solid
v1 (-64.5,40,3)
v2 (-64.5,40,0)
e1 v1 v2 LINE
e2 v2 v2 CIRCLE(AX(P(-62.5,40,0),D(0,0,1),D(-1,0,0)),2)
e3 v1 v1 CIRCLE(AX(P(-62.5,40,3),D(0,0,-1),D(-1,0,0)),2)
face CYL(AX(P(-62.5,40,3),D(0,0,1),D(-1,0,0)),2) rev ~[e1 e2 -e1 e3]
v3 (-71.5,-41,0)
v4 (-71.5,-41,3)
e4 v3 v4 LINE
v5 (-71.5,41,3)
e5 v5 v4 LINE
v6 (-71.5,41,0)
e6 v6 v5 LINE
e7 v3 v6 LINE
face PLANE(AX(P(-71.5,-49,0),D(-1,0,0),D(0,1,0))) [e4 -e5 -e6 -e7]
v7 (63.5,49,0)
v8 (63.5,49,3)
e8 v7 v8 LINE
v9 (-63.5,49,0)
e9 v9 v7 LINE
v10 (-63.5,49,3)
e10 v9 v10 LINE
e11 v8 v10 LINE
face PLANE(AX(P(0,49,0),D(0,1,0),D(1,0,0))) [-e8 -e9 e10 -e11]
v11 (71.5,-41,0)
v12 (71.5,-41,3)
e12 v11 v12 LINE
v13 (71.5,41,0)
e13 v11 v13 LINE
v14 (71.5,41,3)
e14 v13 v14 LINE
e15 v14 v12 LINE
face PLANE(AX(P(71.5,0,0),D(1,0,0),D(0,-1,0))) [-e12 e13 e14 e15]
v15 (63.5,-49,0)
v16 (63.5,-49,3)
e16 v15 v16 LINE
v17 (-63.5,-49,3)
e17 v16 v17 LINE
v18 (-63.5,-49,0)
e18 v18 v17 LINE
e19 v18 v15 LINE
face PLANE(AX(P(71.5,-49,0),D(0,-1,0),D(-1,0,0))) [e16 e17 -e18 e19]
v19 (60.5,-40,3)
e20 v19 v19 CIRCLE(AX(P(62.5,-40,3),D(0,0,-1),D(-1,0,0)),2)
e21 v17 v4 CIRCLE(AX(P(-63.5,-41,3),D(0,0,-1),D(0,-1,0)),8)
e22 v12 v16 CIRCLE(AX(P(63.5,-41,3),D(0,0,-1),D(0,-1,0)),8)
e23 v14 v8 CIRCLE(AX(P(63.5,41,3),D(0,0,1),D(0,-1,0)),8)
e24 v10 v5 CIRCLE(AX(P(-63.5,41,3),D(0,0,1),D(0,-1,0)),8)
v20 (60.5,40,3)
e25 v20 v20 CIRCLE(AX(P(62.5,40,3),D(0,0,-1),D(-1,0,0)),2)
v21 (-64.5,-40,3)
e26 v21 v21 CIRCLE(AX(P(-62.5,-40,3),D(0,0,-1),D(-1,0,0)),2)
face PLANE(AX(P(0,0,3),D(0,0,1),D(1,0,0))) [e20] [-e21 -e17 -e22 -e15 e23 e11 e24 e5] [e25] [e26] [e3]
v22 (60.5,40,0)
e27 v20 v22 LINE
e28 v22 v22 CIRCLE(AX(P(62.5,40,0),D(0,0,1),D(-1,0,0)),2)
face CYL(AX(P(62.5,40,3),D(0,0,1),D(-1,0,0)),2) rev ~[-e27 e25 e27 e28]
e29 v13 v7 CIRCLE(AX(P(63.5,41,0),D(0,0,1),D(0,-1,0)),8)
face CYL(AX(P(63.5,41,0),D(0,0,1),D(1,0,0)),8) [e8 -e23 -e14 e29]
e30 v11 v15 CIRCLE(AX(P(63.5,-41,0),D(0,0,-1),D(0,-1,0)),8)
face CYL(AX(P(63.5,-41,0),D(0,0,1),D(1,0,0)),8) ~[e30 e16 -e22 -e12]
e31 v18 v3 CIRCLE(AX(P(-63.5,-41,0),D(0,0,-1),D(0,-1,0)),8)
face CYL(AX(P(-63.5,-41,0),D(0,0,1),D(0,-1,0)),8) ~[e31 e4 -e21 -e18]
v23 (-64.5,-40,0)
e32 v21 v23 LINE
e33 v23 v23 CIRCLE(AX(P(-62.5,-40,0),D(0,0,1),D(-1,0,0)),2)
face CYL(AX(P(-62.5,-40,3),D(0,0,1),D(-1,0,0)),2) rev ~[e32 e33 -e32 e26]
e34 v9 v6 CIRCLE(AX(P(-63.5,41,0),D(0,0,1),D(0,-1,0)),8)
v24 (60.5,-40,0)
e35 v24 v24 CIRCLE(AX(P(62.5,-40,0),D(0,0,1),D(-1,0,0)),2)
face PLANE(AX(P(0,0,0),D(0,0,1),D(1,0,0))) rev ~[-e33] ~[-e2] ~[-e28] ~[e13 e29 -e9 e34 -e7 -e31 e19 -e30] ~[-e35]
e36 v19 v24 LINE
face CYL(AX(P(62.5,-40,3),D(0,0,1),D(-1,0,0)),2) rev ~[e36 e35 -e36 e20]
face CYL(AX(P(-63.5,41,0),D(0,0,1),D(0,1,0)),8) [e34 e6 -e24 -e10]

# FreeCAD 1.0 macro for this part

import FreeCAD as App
import Part
import Sketcher

V = App.Vector


def edges_at(feature, points):
    """Names of the edges that pass closest to the given points."""
    edges = feature.Shape.Edges
    near = lambda p: min(range(len(edges)), key=lambda i: edges[i].distToShape(Part.Vertex(*p))[0])
    return sorted({f"Edge{near(p) + 1}" for p in points})

doc = App.newDocument("Part")
params = doc.addObject("Spreadsheet::Sheet", "Params")
for row, (alias, value) in enumerate([
    ("sketch1_width", "143 mm"),
    ("sketch1_height", "98 mm"),
    ("pad1_length", "3 mm"),
    ("sketch2_diameter", "4 mm"),
    ("pocket1_length", "3 mm"),
    ("fillet_radius", "8 mm"),
], start=1):
    params.set(f"A{row}", alias)
    params.set(f"B{row}", "=" + value)
    params.setAlias(f"B{row}", alias)

body = doc.addObject("PartDesign::Body", "Body")

# Sketch on XY plane
sketch1 = doc.addObject("Sketcher::SketchObject", "Sketch")
body.addObject(sketch1)
sketch1.AttachmentSupport = (doc.XY_Plane, [""])
sketch1.MapMode = "FlatFace"
sketch1.addGeometry([
    Part.LineSegment(V(72, -49, 0), V(72, 49, 0)),
    Part.LineSegment(V(72, 49, 0), V(-72, 49, 0)),
    Part.LineSegment(V(-72, 49, 0), V(-72, -49, 0)),
    Part.LineSegment(V(-72, -49, 0), V(72, -49, 0)),
], False)
sketch1.addConstraint([
    Sketcher.Constraint("Coincident", 0, 2, 1, 1),
    Sketcher.Constraint("Coincident", 1, 2, 2, 1),
    Sketcher.Constraint("Coincident", 2, 2, 3, 1),
    Sketcher.Constraint("Coincident", 3, 2, 0, 1),
    Sketcher.Constraint("Vertical", 0),
    Sketcher.Constraint("Horizontal", 1),
    Sketcher.Constraint("Vertical", 2),
    Sketcher.Constraint("Horizontal", 3),
    Sketcher.Constraint("Symmetric", 0, 2, 2, 2, -1, 1),
    Sketcher.Constraint("DistanceX", 1, 2, 1, 1, 143.0),
    Sketcher.Constraint("DistanceY", 0, 1, 0, 2, 98.0),
])
sketch1.setExpression("Constraints[9]", "Params.sketch1_width")
sketch1.setExpression("Constraints[10]", "Params.sketch1_height")
pad1 = doc.addObject("PartDesign::Pad", "Pad")
body.addObject(pad1)
pad1.Profile = sketch1
pad1.setExpression("Length", "Params.pad1_length")

# Sketch on XY plane
sketch2 = doc.addObject("Sketcher::SketchObject", "Sketch001")
body.addObject(sketch2)
sketch2.AttachmentSupport = (doc.XY_Plane, [""])
sketch2.MapMode = "FlatFace"
sketch2.AttachmentOffset = App.Placement(V(0, 0, 3), App.Rotation())
sketch2.addGeometry([
    Part.Circle(V(-62.5, -40, 0), V(0, 0, 1), 2),
    Part.Circle(V(62.5, -40, 0), V(0, 0, 1), 2),
    Part.Circle(V(62.5, 40, 0), V(0, 0, 1), 2),
    Part.Circle(V(-62.5, 40, 0), V(0, 0, 1), 2),
], False)
sketch2.addConstraint([
    Sketcher.Constraint("Equal", 0, 1),
    Sketcher.Constraint("Equal", 1, 2),
    Sketcher.Constraint("Equal", 2, 3),
    Sketcher.Constraint("Symmetric", 0, 3, 2, 3, -1, 1),
    Sketcher.Constraint("Symmetric", 1, 3, 3, 3, -1, 1),
    Sketcher.Constraint("Symmetric", 0, 3, 1, 3, -2),
    Sketcher.Constraint("Diameter", 0, 4.0),
    Sketcher.Constraint("DistanceY", 0, 3, -1, 1, 40.0),
    Sketcher.Constraint("DistanceX", 0, 3, 1, 3, 125.0),
])
sketch2.setExpression("Constraints[6]", "Params.sketch2_diameter")
pocket1 = doc.addObject("PartDesign::Pocket", "Pocket")
body.addObject(pocket1)
pocket1.Profile = sketch2
pocket1.setExpression("Length", "Params.pocket1_length")
doc.recompute()

fillet = doc.addObject("PartDesign::Fillet", "Fillet")
body.addObject(fillet)
fillet.Base = (pocket1, edges_at(pocket1, [
    (-71.5, -49, 1.5),
    (-71.5, 49, 1.5),
    (71.5, -49, 1.5),
    (71.5, 49, 1.5),
]))
fillet.setExpression("Radius", "Params.fillet_radius")

doc.recompute()
